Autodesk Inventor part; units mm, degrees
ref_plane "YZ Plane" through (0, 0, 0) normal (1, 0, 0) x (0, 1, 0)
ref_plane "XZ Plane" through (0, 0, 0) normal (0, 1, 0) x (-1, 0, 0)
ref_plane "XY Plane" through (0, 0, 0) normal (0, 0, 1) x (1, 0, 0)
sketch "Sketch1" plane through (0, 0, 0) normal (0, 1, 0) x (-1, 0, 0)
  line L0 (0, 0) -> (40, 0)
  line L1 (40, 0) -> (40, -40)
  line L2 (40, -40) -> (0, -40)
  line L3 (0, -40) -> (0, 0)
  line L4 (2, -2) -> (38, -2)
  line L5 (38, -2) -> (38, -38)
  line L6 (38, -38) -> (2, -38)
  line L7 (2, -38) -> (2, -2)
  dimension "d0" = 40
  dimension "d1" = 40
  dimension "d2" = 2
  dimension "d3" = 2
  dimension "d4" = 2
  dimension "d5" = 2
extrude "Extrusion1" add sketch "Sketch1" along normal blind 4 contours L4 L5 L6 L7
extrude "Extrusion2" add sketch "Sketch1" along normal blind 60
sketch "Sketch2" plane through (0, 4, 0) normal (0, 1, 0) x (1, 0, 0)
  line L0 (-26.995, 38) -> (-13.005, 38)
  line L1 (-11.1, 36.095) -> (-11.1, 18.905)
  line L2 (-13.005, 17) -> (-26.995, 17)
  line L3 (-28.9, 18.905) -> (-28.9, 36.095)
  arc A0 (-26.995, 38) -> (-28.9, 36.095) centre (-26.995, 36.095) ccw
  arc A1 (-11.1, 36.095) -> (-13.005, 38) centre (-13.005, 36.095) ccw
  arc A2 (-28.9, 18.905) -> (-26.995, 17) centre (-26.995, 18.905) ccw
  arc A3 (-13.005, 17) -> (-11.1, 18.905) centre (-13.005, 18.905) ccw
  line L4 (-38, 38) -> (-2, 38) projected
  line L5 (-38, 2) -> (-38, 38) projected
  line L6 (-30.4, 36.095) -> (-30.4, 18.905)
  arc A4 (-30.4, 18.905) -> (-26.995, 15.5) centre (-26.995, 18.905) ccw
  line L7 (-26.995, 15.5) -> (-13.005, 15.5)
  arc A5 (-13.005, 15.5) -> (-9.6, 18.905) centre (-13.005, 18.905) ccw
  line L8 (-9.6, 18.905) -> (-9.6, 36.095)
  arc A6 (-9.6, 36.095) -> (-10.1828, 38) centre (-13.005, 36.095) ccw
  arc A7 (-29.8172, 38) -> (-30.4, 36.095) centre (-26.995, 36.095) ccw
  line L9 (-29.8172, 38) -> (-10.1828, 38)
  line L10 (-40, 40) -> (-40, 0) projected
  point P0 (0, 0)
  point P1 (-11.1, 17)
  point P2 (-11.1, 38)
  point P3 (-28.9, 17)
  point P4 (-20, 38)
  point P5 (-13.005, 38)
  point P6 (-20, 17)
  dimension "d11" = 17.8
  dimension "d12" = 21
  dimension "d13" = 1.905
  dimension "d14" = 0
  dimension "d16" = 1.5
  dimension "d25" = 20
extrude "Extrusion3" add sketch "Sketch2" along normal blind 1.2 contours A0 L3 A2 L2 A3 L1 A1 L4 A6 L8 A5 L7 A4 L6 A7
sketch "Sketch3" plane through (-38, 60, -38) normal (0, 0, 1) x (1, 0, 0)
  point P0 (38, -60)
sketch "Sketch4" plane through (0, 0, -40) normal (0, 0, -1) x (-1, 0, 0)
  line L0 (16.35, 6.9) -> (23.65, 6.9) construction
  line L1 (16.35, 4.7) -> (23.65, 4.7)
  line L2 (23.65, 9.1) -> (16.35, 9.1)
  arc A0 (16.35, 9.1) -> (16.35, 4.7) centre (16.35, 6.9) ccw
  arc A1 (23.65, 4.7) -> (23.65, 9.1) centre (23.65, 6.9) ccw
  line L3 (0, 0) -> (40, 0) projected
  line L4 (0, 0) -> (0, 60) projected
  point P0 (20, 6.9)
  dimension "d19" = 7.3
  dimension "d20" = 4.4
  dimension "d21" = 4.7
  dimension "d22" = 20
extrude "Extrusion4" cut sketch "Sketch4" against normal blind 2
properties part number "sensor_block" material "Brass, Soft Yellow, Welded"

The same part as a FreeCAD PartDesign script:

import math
import FreeCAD as App
import Part
import Sketcher
from FreeCAD import Vector


def add_polygon(sketch, points):
    """Adds a closed chain of lines whose ends are joined by coincident constraints."""
    first, n = sketch.GeometryCount, len(points)
    for a, b in zip(points, points[1:] + points[:1]):
        sketch.addGeometry(Part.LineSegment(App.Vector(*a, 0), App.Vector(*b, 0)), False)
    for i in range(n):
        sketch.addConstraint(Sketcher.Constraint("Coincident", first + i, 2, first + (i + 1) % n, 1))

doc = App.newDocument("Part")
body = doc.addObject("PartDesign::Body", "Body")

# Sketch on XZ plane
sketch1 = doc.addObject("Sketcher::SketchObject", "Sketch")
body.addObject(sketch1)
sketch1.AttachmentSupport = (doc.XZ_Plane, [""])
sketch1.MapMode = "FlatFace"
add_polygon(sketch1, [(-38, -2), (-2, -2), (-2, -38), (-38, -38)])  # lines 0-3
sketch1.addConstraint([
    Sketcher.Constraint("Horizontal", 0),
    Sketcher.Constraint("Vertical", 1),
    Sketcher.Constraint("Horizontal", 2),
    Sketcher.Constraint("Vertical", 3),
    Sketcher.Constraint("Equal", 2, 1),
    Sketcher.Constraint("DistanceX", 0, 2, -1, 1, 2.0),
    Sketcher.Constraint("DistanceY", 0, 2, -1, 1, 2.0),
    Sketcher.Constraint("DistanceX", 0, 1, 0, 2, 36.0),
])
pad1 = doc.addObject("PartDesign::Pad", "Pad")
body.addObject(pad1)
pad1.Profile = sketch1
pad1.Length = 4
pad1.Reversed = True

# Sketch on XZ plane
sketch2 = doc.addObject("Sketcher::SketchObject", "Sketch001")
body.addObject(sketch2)
sketch2.AttachmentSupport = (doc.XZ_Plane, [""])
sketch2.MapMode = "FlatFace"
add_polygon(sketch2, [(-40, 0), (0, 0), (0, -40), (-40, -40)])  # lines 0-3
add_polygon(sketch2, [(-2, -38), (-2, -2), (-38, -2), (-38, -38)])  # lines 4-7
sketch2.addConstraint([
    Sketcher.Constraint("Horizontal", 0),
    Sketcher.Constraint("Vertical", 1),
    Sketcher.Constraint("Horizontal", 2),
    Sketcher.Constraint("Vertical", 3),
    Sketcher.Constraint("Vertical", 4),
    Sketcher.Constraint("Horizontal", 5),
    Sketcher.Constraint("Vertical", 6),
    Sketcher.Constraint("Horizontal", 7),
    Sketcher.Constraint("Coincident", 0, 2, -1, 1),
    Sketcher.Constraint("Equal", 2, 1),
    Sketcher.Constraint("Equal", 7, 4),
    Sketcher.Constraint("DistanceX", 0, 1, 0, 2, 40.0),
    Sketcher.Constraint("DistanceX", 4, 2, -1, 1, 2.0),
    Sketcher.Constraint("DistanceY", 4, 2, -1, 1, 2.0),
    Sketcher.Constraint("DistanceX", 3, 2, 5, 2, 2.0),
])
pad2 = doc.addObject("PartDesign::Pad", "Pad001")
body.addObject(pad2)
pad2.Profile = sketch2
pad2.Length = 60
pad2.Reversed = True

# Sketch on XZ plane
sketch3 = doc.addObject("Sketcher::SketchObject", "Sketch002")
body.addObject(sketch3)
sketch3.AttachmentSupport = (doc.XZ_Plane, [""])
sketch3.MapMode = "FlatFace"
sketch3.AttachmentOffset = App.Placement(Vector(0, 0, -4), App.Rotation())
sketch3.addGeometry([
    Part.ArcOfCircle(Part.Circle(Vector(-27, -36.1, 0), Vector(0, 0, 1), 1.9), math.radians(180), math.radians(270)),  # 0
    Part.LineSegment(Vector(-27, -38, 0), Vector(-29.8, -38, 0)),  # 1
    Part.ArcOfCircle(Part.Circle(Vector(-27, -36.1, 0), Vector(0, 0, 1), 3.4), math.radians(180), math.radians(214)),  # 2
    Part.LineSegment(Vector(-30.4, -36.1, 0), Vector(-30.4, -18.9, 0)),  # 3
    Part.ArcOfCircle(Part.Circle(Vector(-27, -18.9, 0), Vector(0, 0, 1), 3.4), math.radians(90), math.radians(180)),  # 4
    Part.LineSegment(Vector(-27, -15.5, 0), Vector(-13, -15.5, 0)),  # 5
    Part.ArcOfCircle(Part.Circle(Vector(-13, -18.9, 0), Vector(0, 0, 1), 3.4), math.radians(0), math.radians(90)),  # 6
    Part.LineSegment(Vector(-9.6, -18.9, 0), Vector(-9.6, -36.1, 0)),  # 7
    Part.ArcOfCircle(Part.Circle(Vector(-13, -36.1, 0), Vector(0, 0, 1), 3.4), math.radians(-34), math.radians(0)),  # 8
    Part.LineSegment(Vector(-10.2, -38, 0), Vector(-13, -38, 0)),  # 9
    Part.ArcOfCircle(Part.Circle(Vector(-13, -36.1, 0), Vector(0, 0, 1), 1.9), math.radians(-90), math.radians(0)),  # 10
    Part.LineSegment(Vector(-11.1, -36.1, 0), Vector(-11.1, -18.9, 0)),  # 11
    Part.ArcOfCircle(Part.Circle(Vector(-13, -18.9, 0), Vector(0, 0, 1), 1.9), math.radians(0), math.radians(90)),  # 12
    Part.LineSegment(Vector(-13, -17, 0), Vector(-27, -17, 0)),  # 13
    Part.ArcOfCircle(Part.Circle(Vector(-27, -18.9, 0), Vector(0, 0, 1), 1.9), math.radians(90), math.radians(180)),  # 14
    Part.LineSegment(Vector(-28.9, -18.9, 0), Vector(-28.9, -36.1, 0)),  # 15
], False)
sketch3.addConstraint([
    Sketcher.Constraint("Tangent", 0, 2, 1, 1),
    Sketcher.Constraint("Coincident", 1, 2, 2, 2),
    Sketcher.Constraint("Tangent", 2, 1, 3, 1),
    Sketcher.Constraint("Tangent", 3, 2, 4, 2),
    Sketcher.Constraint("Tangent", 4, 1, 5, 1),
    Sketcher.Constraint("Tangent", 5, 2, 6, 2),
    Sketcher.Constraint("Tangent", 6, 1, 7, 1),
    Sketcher.Constraint("Tangent", 7, 2, 8, 2),
    Sketcher.Constraint("Coincident", 8, 1, 9, 1),
    Sketcher.Constraint("Tangent", 9, 2, 10, 1),
    Sketcher.Constraint("Tangent", 10, 2, 11, 1),
    Sketcher.Constraint("Tangent", 11, 2, 12, 1),
    Sketcher.Constraint("Tangent", 12, 2, 13, 1),
    Sketcher.Constraint("Tangent", 13, 2, 14, 1),
    Sketcher.Constraint("Tangent", 14, 2, 15, 1),
    Sketcher.Constraint("Tangent", 15, 2, 0, 1),
    Sketcher.Constraint("Horizontal", 1),
    Sketcher.Constraint("Vertical", 3),
    Sketcher.Constraint("Horizontal", 5),
    Sketcher.Constraint("Vertical", 7),
    Sketcher.Constraint("Horizontal", 9),
    Sketcher.Constraint("Vertical", 11),
    Sketcher.Constraint("Horizontal", 13),
    Sketcher.Constraint("Vertical", 15),
    Sketcher.Constraint("Coincident", 2, 3, 0, 3),
    Sketcher.Constraint("Coincident", 10, 3, 8, 3),
    Sketcher.Constraint("Coincident", 12, 3, 6, 3),
    Sketcher.Constraint("Coincident", 14, 3, 4, 3),
    Sketcher.Constraint("Equal", 2, 4),
    Sketcher.Constraint("Equal", 4, 6),
    Sketcher.Constraint("Equal", 6, 8),
    Sketcher.Constraint("Horizontal", 2, 3, 8, 3),
    Sketcher.Constraint("Radius", 0, 1.905),
    Sketcher.Constraint("DistanceX", 10, 2, 7, 2, 1.5),
    Sketcher.Constraint("DistanceY", 0, 2, -1, 1, 38.0),
    Sketcher.Constraint("DistanceY", 12, 2, -1, 1, 17.0),
    Sketcher.Constraint("DistanceX", 5, 1, 5, 2, 13.99),
    Sketcher.Constraint("DistanceX", 2, 1, -1, 1, 30.4),
])
pad3 = doc.addObject("PartDesign::Pad", "Pad002")
body.addObject(pad3)
pad3.Profile = sketch3
pad3.Length = 1.2
pad3.Reversed = True

# Sketch on XY plane
sketch4 = doc.addObject("Sketcher::SketchObject", "Sketch003")
body.addObject(sketch4)
sketch4.AttachmentSupport = (doc.XY_Plane, [""])
sketch4.MapMode = "FlatFace"
sketch4.AttachmentOffset = App.Placement(Vector(0, 0, -40), App.Rotation())
sketch4.addGeometry([
    Part.ArcOfCircle(Part.Circle(Vector(-16.4, 6.9, 0), Vector(0, 0, 1), 2.2), math.radians(-90), math.radians(90)),
    Part.LineSegment(Vector(-16.4, 4.7, 0), Vector(-23.6, 4.7, 0)),
    Part.ArcOfCircle(Part.Circle(Vector(-23.6, 6.9, 0), Vector(0, 0, 1), 2.2), math.radians(90), math.radians(270)),
    Part.LineSegment(Vector(-23.6, 9.1, 0), Vector(-16.4, 9.1, 0)),
], False)
sketch4.addConstraint([
    Sketcher.Constraint("Tangent", 0, 1, 1, 1),
    Sketcher.Constraint("Tangent", 1, 2, 2, 2),
    Sketcher.Constraint("Tangent", 2, 1, 3, 1),
    Sketcher.Constraint("Tangent", 3, 2, 0, 2),
    Sketcher.Constraint("Horizontal", 1),
    Sketcher.Constraint("Horizontal", 3),
    Sketcher.Constraint("Radius", 0, 2.2),
    Sketcher.Constraint("DistanceX", 1, 2, 1, 1, 7.3),
    Sketcher.Constraint("DistanceY", -1, 1, 0, 1, 4.7),
    Sketcher.Constraint("DistanceX", 0, 3, -1, 1, 16.35),
])
pocket1 = doc.addObject("PartDesign::Pocket", "Pocket")
body.addObject(pocket1)
pocket1.Profile = sketch4
pocket1.Length = 2
pocket1.Reversed = True

doc.recompute()
